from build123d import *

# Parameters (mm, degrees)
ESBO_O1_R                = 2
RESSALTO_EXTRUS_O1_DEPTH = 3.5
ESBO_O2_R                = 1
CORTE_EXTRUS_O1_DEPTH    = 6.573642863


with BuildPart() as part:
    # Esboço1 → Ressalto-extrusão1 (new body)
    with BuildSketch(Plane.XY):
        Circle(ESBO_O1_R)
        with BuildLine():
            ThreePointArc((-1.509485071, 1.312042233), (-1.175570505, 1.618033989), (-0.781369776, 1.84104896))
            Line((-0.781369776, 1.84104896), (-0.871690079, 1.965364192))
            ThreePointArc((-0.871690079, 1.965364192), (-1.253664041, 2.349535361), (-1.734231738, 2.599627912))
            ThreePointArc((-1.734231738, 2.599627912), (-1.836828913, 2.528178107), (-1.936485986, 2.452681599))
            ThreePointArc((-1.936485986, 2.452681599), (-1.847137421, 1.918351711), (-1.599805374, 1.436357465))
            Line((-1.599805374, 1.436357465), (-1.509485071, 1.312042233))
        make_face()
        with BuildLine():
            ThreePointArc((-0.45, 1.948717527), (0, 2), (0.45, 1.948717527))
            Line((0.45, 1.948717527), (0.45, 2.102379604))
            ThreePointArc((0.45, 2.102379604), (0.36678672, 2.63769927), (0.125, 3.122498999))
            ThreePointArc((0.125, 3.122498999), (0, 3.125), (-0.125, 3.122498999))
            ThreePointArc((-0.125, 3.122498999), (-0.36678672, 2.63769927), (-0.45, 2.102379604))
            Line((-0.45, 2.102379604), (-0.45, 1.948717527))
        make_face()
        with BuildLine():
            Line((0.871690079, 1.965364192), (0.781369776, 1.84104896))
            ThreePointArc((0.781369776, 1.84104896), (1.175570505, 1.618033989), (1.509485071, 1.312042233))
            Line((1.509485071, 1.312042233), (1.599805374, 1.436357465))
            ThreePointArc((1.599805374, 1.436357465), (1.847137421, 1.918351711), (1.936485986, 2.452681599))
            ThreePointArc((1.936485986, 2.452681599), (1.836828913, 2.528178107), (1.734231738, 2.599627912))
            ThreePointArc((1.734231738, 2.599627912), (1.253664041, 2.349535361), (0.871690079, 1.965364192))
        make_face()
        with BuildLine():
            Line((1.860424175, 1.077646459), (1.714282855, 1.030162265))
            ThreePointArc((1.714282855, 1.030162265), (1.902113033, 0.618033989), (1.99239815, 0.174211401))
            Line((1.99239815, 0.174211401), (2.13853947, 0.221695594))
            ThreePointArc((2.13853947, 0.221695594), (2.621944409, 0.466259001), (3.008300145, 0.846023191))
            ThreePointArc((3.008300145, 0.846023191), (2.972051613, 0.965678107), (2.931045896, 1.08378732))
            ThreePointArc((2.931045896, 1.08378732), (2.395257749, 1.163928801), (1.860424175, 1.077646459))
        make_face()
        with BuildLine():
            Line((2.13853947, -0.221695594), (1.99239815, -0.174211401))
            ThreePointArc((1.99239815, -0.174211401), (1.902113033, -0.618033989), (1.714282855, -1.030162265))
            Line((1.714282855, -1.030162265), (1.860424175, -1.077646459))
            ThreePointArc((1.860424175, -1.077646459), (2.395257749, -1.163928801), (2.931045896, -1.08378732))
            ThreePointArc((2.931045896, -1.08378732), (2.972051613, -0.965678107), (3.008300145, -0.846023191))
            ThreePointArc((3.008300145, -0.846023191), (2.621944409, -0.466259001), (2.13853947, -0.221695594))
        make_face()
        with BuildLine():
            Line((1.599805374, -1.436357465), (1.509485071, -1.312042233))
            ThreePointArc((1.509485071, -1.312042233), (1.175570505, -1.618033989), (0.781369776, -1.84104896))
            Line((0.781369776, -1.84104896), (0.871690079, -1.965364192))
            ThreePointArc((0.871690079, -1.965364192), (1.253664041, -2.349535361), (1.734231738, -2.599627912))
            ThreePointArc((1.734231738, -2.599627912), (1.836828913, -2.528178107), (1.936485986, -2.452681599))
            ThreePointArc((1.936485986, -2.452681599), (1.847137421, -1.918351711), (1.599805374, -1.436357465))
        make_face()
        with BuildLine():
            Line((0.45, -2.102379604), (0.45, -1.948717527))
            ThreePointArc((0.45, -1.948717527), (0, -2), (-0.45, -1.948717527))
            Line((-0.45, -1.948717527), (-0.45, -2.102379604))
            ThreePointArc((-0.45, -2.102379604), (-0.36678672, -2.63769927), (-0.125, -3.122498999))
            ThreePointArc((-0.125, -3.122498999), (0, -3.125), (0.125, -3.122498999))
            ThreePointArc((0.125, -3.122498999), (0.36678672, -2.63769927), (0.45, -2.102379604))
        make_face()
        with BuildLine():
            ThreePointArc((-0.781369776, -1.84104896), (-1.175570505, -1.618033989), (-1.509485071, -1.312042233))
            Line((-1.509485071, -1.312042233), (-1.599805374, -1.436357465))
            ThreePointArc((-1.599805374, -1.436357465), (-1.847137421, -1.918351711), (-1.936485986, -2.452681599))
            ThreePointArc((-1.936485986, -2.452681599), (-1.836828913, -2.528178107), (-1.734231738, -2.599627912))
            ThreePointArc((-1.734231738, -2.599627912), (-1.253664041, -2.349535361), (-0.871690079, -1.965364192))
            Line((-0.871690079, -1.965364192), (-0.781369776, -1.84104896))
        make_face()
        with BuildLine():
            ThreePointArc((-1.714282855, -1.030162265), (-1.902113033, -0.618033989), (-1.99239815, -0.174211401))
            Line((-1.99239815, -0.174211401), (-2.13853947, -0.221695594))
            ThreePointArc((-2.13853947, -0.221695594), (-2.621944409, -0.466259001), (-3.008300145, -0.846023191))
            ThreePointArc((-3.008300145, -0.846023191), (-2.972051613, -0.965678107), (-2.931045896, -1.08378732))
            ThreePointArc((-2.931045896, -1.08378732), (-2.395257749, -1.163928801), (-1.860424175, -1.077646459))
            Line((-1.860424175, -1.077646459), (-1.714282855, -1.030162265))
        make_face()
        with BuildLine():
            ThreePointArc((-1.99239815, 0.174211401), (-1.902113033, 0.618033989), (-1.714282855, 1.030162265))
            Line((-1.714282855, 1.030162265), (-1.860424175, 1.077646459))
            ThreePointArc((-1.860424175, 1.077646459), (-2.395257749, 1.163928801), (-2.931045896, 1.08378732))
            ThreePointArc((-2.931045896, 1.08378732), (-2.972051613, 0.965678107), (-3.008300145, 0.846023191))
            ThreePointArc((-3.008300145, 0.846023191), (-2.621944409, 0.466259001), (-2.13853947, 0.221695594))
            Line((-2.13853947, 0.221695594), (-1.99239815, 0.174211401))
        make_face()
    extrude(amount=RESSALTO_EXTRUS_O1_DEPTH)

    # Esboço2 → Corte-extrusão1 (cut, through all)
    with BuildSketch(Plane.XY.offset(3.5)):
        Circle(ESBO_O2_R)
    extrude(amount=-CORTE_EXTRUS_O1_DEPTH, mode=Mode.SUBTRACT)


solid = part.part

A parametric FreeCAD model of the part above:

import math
import FreeCAD as App
import Part
import Sketcher
Q = App.Units.Quantity

doc = App.newDocument("Part")
body = doc.addObject("PartDesign::Body", "Body")

# Sketch on XY plane
sketch1 = body.newObject("Sketcher::SketchObject", "Sketch")
sketch1.AttachmentSupport = (doc.getObject("XY_Plane"), [""])
sketch1.MapMode = "FlatFace"
sketch1.addGeometry(Part.LineSegment(App.Vector(-0.78, 1.84, 0), App.Vector(-0.87, 1.97, 0)), False)
sketch1.addGeometry(Part.ArcOfCircle(Part.Circle(App.Vector(-2.3, 0.93, 0), App.Vector(0, 0, 1), 1.76), math.radians(36), math.radians(71)), False)
sketch1.addGeometry(Part.ArcOfCircle(Part.Circle(App.Vector(0, 0, 0), App.Vector(0, 0, 1), 3.13), math.radians(123.71), math.radians(128.29)), False)
sketch1.addGeometry(Part.ArcOfCircle(Part.Circle(App.Vector(-0.17, 2.47, 0), App.Vector(0, 0, 1), 1.76), math.radians(-179), math.radians(-144)), False)
sketch1.addGeometry(Part.LineSegment(App.Vector(-1.6, 1.44, 0), App.Vector(-1.51, 1.31, 0)), False)
sketch1.addGeometry(Part.ArcOfCircle(Part.Circle(App.Vector(0, 0, 0), App.Vector(0, 0, 1), 2), math.radians(139), math.radians(149)), False)
sketch1.addGeometry(Part.LineSegment(App.Vector(-1.71, 1.03, 0), App.Vector(-1.86, 1.08, 0)), False)
sketch1.addGeometry(Part.ArcOfCircle(Part.Circle(App.Vector(-2.41, -0.6, 0), App.Vector(0, 0, 1), 1.76), math.radians(72), math.radians(107)), False)
sketch1.addGeometry(Part.ArcOfCircle(Part.Circle(App.Vector(0, 0, 0), App.Vector(0, 0, 1), 3.13), math.radians(159.71), math.radians(164.29)), False)
sketch1.addGeometry(Part.ArcOfCircle(Part.Circle(App.Vector(-1.59, 1.9, 0), App.Vector(0, 0, 1), 1.76), math.radians(-143), math.radians(-108)), False)
sketch1.addGeometry(Part.LineSegment(App.Vector(-2.14, 0.22, 0), App.Vector(-1.99, 0.17, 0)), False)
sketch1.addGeometry(Part.ArcOfCircle(Part.Circle(App.Vector(0, 0, 0), App.Vector(0, 0, 1), 2), math.radians(175), math.radians(185)), False)
sketch1.addGeometry(Part.LineSegment(App.Vector(-1.99, -0.17, 0), App.Vector(-2.14, -0.22, 0)), False)
sketch1.addGeometry(Part.ArcOfCircle(Part.Circle(App.Vector(-1.59, -1.9, 0), App.Vector(0, 0, 1), 1.76), math.radians(108), math.radians(143)), False)
sketch1.addGeometry(Part.ArcOfCircle(Part.Circle(App.Vector(0, 0, 0), App.Vector(0, 0, 1), 3.13), math.radians(-164.29), math.radians(-159.71)), False)
sketch1.addGeometry(Part.ArcOfCircle(Part.Circle(App.Vector(-2.41, 0.6, 0), App.Vector(0, 0, 1), 1.76), math.radians(-107), math.radians(-72)), False)
sketch1.addGeometry(Part.LineSegment(App.Vector(-1.86, -1.08, 0), App.Vector(-1.71, -1.03, 0)), False)
sketch1.addGeometry(Part.ArcOfCircle(Part.Circle(App.Vector(0, 0, 0), App.Vector(0, 0, 1), 2), math.radians(-149), math.radians(-139)), False)
sketch1.addGeometry(Part.LineSegment(App.Vector(-1.51, -1.31, 0), App.Vector(-1.6, -1.44, 0)), False)
sketch1.addGeometry(Part.ArcOfCircle(Part.Circle(App.Vector(-0.17, -2.47, 0), App.Vector(0, 0, 1), 1.76), math.radians(144), math.radians(179)), False)
sketch1.addGeometry(Part.ArcOfCircle(Part.Circle(App.Vector(0, 0, 0), App.Vector(0, 0, 1), 3.13), math.radians(-128.29), math.radians(-123.71)), False)
sketch1.addGeometry(Part.ArcOfCircle(Part.Circle(App.Vector(-2.3, -0.93, 0), App.Vector(0, 0, 1), 1.76), math.radians(-71), math.radians(-36)), False)
sketch1.addGeometry(Part.LineSegment(App.Vector(-0.87, -1.97, 0), App.Vector(-0.78, -1.84, 0)), False)
sketch1.addGeometry(Part.ArcOfCircle(Part.Circle(App.Vector(0, 0, 0), App.Vector(0, 0, 1), 2), math.radians(-113), math.radians(-103)), False)
sketch1.addGeometry(Part.LineSegment(App.Vector(-0.45, -1.95, 0), App.Vector(-0.45, -2.1, 0)), False)
sketch1.addGeometry(Part.ArcOfCircle(Part.Circle(App.Vector(1.31, -2.1, 0), App.Vector(0, 0, 1), 1.76), math.radians(180), math.radians(215)), False)
sketch1.addGeometry(Part.ArcOfCircle(Part.Circle(App.Vector(0, 0, 0), App.Vector(0, 0, 1), 3.12), math.radians(-92.29), math.radians(-87.71)), False)
sketch1.addGeometry(Part.ArcOfCircle(Part.Circle(App.Vector(-1.31, -2.1, 0), App.Vector(0, 0, 1), 1.76), math.radians(-35), math.radians(0)), False)
sketch1.addGeometry(Part.LineSegment(App.Vector(0.45, -2.1, 0), App.Vector(0.45, -1.95, 0)), False)
sketch1.addGeometry(Part.ArcOfCircle(Part.Circle(App.Vector(0, 0, 0), App.Vector(0, 0, 1), 2), math.radians(-77), math.radians(-67)), False)
sketch1.addGeometry(Part.LineSegment(App.Vector(0.78, -1.84, 0), App.Vector(0.87, -1.97, 0)), False)
sketch1.addGeometry(Part.ArcOfCircle(Part.Circle(App.Vector(2.3, -0.93, 0), App.Vector(0, 0, 1), 1.76), math.radians(-144), math.radians(-109)), False)
sketch1.addGeometry(Part.ArcOfCircle(Part.Circle(App.Vector(0, 0, 0), App.Vector(0, 0, 1), 3.13), math.radians(-56.29), math.radians(-51.71)), False)
sketch1.addGeometry(Part.ArcOfCircle(Part.Circle(App.Vector(0.17, -2.47, 0), App.Vector(0, 0, 1), 1.76), math.radians(1), math.radians(36)), False)
sketch1.addGeometry(Part.LineSegment(App.Vector(1.6, -1.44, 0), App.Vector(1.51, -1.31, 0)), False)
sketch1.addGeometry(Part.ArcOfCircle(Part.Circle(App.Vector(0, 0, 0), App.Vector(0, 0, 1), 2), math.radians(-41), math.radians(-31)), False)
sketch1.addGeometry(Part.LineSegment(App.Vector(1.71, -1.03, 0), App.Vector(1.86, -1.08, 0)), False)
sketch1.addGeometry(Part.ArcOfCircle(Part.Circle(App.Vector(2.41, 0.6, 0), App.Vector(0, 0, 1), 1.76), math.radians(-108), math.radians(-73)), False)
sketch1.addGeometry(Part.ArcOfCircle(Part.Circle(App.Vector(0, 0, 0), App.Vector(0, 0, 1), 3.13), math.radians(-20.29), math.radians(-15.71)), False)
sketch1.addGeometry(Part.ArcOfCircle(Part.Circle(App.Vector(1.59, -1.9, 0), App.Vector(0, 0, 1), 1.76), math.radians(37), math.radians(72)), False)
sketch1.addGeometry(Part.LineSegment(App.Vector(2.14, -0.22, 0), App.Vector(1.99, -0.17, 0)), False)
sketch1.addGeometry(Part.ArcOfCircle(Part.Circle(App.Vector(0, 0, 0), App.Vector(0, 0, 1), 2), math.radians(-5), math.radians(5)), False)
sketch1.addGeometry(Part.LineSegment(App.Vector(1.99, 0.17, 0), App.Vector(2.14, 0.22, 0)), False)
sketch1.addGeometry(Part.ArcOfCircle(Part.Circle(App.Vector(1.59, 1.9, 0), App.Vector(0, 0, 1), 1.76), math.radians(-72), math.radians(-37)), False)
sketch1.addGeometry(Part.ArcOfCircle(Part.Circle(App.Vector(0, 0, 0), App.Vector(0, 0, 1), 3.13), math.radians(15.71), math.radians(20.29)), False)
sketch1.addGeometry(Part.ArcOfCircle(Part.Circle(App.Vector(2.41, -0.6, 0), App.Vector(0, 0, 1), 1.76), math.radians(73), math.radians(108)), False)
sketch1.addGeometry(Part.LineSegment(App.Vector(1.86, 1.08, 0), App.Vector(1.71, 1.03, 0)), False)
sketch1.addGeometry(Part.ArcOfCircle(Part.Circle(App.Vector(0, 0, 0), App.Vector(0, 0, 1), 2), math.radians(31), math.radians(41)), False)
sketch1.addGeometry(Part.LineSegment(App.Vector(1.51, 1.31, 0), App.Vector(1.6, 1.44, 0)), False)
sketch1.addGeometry(Part.ArcOfCircle(Part.Circle(App.Vector(0.17, 2.47, 0), App.Vector(0, 0, 1), 1.76), math.radians(-36), math.radians(-1)), False)
sketch1.addGeometry(Part.ArcOfCircle(Part.Circle(App.Vector(0, 0, 0), App.Vector(0, 0, 1), 3.13), math.radians(51.71), math.radians(56.29)), False)
sketch1.addGeometry(Part.ArcOfCircle(Part.Circle(App.Vector(2.3, 0.93, 0), App.Vector(0, 0, 1), 1.76), math.radians(109), math.radians(144)), False)
sketch1.addGeometry(Part.LineSegment(App.Vector(0.87, 1.97, 0), App.Vector(0.78, 1.84, 0)), False)
sketch1.addGeometry(Part.ArcOfCircle(Part.Circle(App.Vector(0, 0, 0), App.Vector(0, 0, 1), 2), math.radians(67), math.radians(77)), False)
sketch1.addGeometry(Part.LineSegment(App.Vector(0.45, 1.95, 0), App.Vector(0.45, 2.1, 0)), False)
sketch1.addGeometry(Part.ArcOfCircle(Part.Circle(App.Vector(-1.31, 2.1, 0), App.Vector(0, 0, 1), 1.76), math.radians(0), math.radians(35)), False)
sketch1.addGeometry(Part.ArcOfCircle(Part.Circle(App.Vector(0, 0, 0), App.Vector(0, 0, 1), 3.12), math.radians(87.71), math.radians(92.29)), False)
sketch1.addGeometry(Part.ArcOfCircle(Part.Circle(App.Vector(1.31, 2.1, 0), App.Vector(0, 0, 1), 1.76), math.radians(145), math.radians(180)), False)
sketch1.addGeometry(Part.LineSegment(App.Vector(-0.45, 2.1, 0), App.Vector(-0.45, 1.95, 0)), False)
sketch1.addGeometry(Part.ArcOfCircle(Part.Circle(App.Vector(0, 0, 0), App.Vector(0, 0, 1), 2), math.radians(103), math.radians(113)), False)
sketch1.addConstraint(Sketcher.Constraint("Tangent", 0, 2, 1, 1))
sketch1.addConstraint(Sketcher.Constraint("Coincident", 1, 2, 2, 1))
sketch1.addConstraint(Sketcher.Constraint("Coincident", 2, 2, 3, 1))
sketch1.addConstraint(Sketcher.Constraint("Tangent", 3, 2, 4, 1))
sketch1.addConstraint(Sketcher.Constraint("Coincident", 4, 2, 5, 1))
sketch1.addConstraint(Sketcher.Constraint("Coincident", 5, 2, 6, 1))
sketch1.addConstraint(Sketcher.Constraint("Tangent", 6, 2, 7, 1))
sketch1.addConstraint(Sketcher.Constraint("Coincident", 7, 2, 8, 1))
sketch1.addConstraint(Sketcher.Constraint("Coincident", 8, 2, 9, 1))
sketch1.addConstraint(Sketcher.Constraint("Tangent", 9, 2, 10, 1))
sketch1.addConstraint(Sketcher.Constraint("Coincident", 10, 2, 11, 1))
sketch1.addConstraint(Sketcher.Constraint("Coincident", 11, 2, 12, 1))
sketch1.addConstraint(Sketcher.Constraint("Tangent", 12, 2, 13, 1))
sketch1.addConstraint(Sketcher.Constraint("Coincident", 13, 2, 14, 1))
sketch1.addConstraint(Sketcher.Constraint("Coincident", 14, 2, 15, 1))
sketch1.addConstraint(Sketcher.Constraint("Tangent", 15, 2, 16, 1))
sketch1.addConstraint(Sketcher.Constraint("Coincident", 16, 2, 17, 1))
sketch1.addConstraint(Sketcher.Constraint("Coincident", 17, 2, 18, 1))
sketch1.addConstraint(Sketcher.Constraint("Tangent", 18, 2, 19, 1))
sketch1.addConstraint(Sketcher.Constraint("Coincident", 19, 2, 20, 1))
sketch1.addConstraint(Sketcher.Constraint("Coincident", 20, 2, 21, 1))
sketch1.addConstraint(Sketcher.Constraint("Tangent", 21, 2, 22, 1))
sketch1.addConstraint(Sketcher.Constraint("Coincident", 22, 2, 23, 1))
sketch1.addConstraint(Sketcher.Constraint("Coincident", 23, 2, 24, 1))
sketch1.addConstraint(Sketcher.Constraint("Tangent", 24, 2, 25, 1))
sketch1.addConstraint(Sketcher.Constraint("Coincident", 25, 2, 26, 1))
sketch1.addConstraint(Sketcher.Constraint("Coincident", 26, 2, 27, 1))
sketch1.addConstraint(Sketcher.Constraint("Tangent", 27, 2, 28, 1))
sketch1.addConstraint(Sketcher.Constraint("Coincident", 28, 2, 29, 1))
sketch1.addConstraint(Sketcher.Constraint("Coincident", 29, 2, 30, 1))
sketch1.addConstraint(Sketcher.Constraint("Tangent", 30, 2, 31, 1))
sketch1.addConstraint(Sketcher.Constraint("Coincident", 31, 2, 32, 1))
sketch1.addConstraint(Sketcher.Constraint("Coincident", 32, 2, 33, 1))
sketch1.addConstraint(Sketcher.Constraint("Tangent", 33, 2, 34, 1))
sketch1.addConstraint(Sketcher.Constraint("Coincident", 34, 2, 35, 1))
sketch1.addConstraint(Sketcher.Constraint("Coincident", 35, 2, 36, 1))
sketch1.addConstraint(Sketcher.Constraint("Tangent", 36, 2, 37, 1))
sketch1.addConstraint(Sketcher.Constraint("Coincident", 37, 2, 38, 1))
sketch1.addConstraint(Sketcher.Constraint("Coincident", 38, 2, 39, 1))
sketch1.addConstraint(Sketcher.Constraint("Tangent", 39, 2, 40, 1))
sketch1.addConstraint(Sketcher.Constraint("Coincident", 40, 2, 41, 1))
sketch1.addConstraint(Sketcher.Constraint("Coincident", 41, 2, 42, 1))
sketch1.addConstraint(Sketcher.Constraint("Tangent", 42, 2, 43, 1))
sketch1.addConstraint(Sketcher.Constraint("Coincident", 43, 2, 44, 1))
sketch1.addConstraint(Sketcher.Constraint("Coincident", 44, 2, 45, 1))
sketch1.addConstraint(Sketcher.Constraint("Tangent", 45, 2, 46, 1))
sketch1.addConstraint(Sketcher.Constraint("Coincident", 46, 2, 47, 1))
sketch1.addConstraint(Sketcher.Constraint("Coincident", 47, 2, 48, 1))
sketch1.addConstraint(Sketcher.Constraint("Tangent", 48, 2, 49, 1))
sketch1.addConstraint(Sketcher.Constraint("Coincident", 49, 2, 50, 1))
sketch1.addConstraint(Sketcher.Constraint("Coincident", 50, 2, 51, 1))
sketch1.addConstraint(Sketcher.Constraint("Tangent", 51, 2, 52, 1))
sketch1.addConstraint(Sketcher.Constraint("Coincident", 52, 2, 53, 1))
sketch1.addConstraint(Sketcher.Constraint("Coincident", 53, 2, 54, 1))
sketch1.addConstraint(Sketcher.Constraint("Tangent", 54, 2, 55, 1))
sketch1.addConstraint(Sketcher.Constraint("Coincident", 55, 2, 56, 1))
sketch1.addConstraint(Sketcher.Constraint("Coincident", 56, 2, 57, 1))
sketch1.addConstraint(Sketcher.Constraint("Tangent", 57, 2, 58, 1))
sketch1.addConstraint(Sketcher.Constraint("Coincident", 58, 2, 59, 1))
sketch1.addConstraint(Sketcher.Constraint("Coincident", 59, 2, 0, 1))
sketch1.addConstraint(Sketcher.Constraint("Vertical", 24))
sketch1.addConstraint(Sketcher.Constraint("Vertical", 28))
sketch1.addConstraint(Sketcher.Constraint("Vertical", 54))
sketch1.addConstraint(Sketcher.Constraint("Vertical", 58))
sketch1.addConstraint(Sketcher.Constraint("Coincident", 2, 3, -1, 1))
sketch1.addConstraint(Sketcher.Constraint("Coincident", 5, 3, -1, 1))
sketch1.addConstraint(Sketcher.Constraint("Coincident", 8, 3, -1, 1))
sketch1.addConstraint(Sketcher.Constraint("Coincident", 11, 3, -1, 1))
sketch1.addConstraint(Sketcher.Constraint("Coincident", 14, 3, -1, 1))
sketch1.addConstraint(Sketcher.Constraint("Coincident", 17, 3, -1, 1))
sketch1.addConstraint(Sketcher.Constraint("Coincident", 20, 3, -1, 1))
sketch1.addConstraint(Sketcher.Constraint("Coincident", 23, 3, -1, 1))
sketch1.addConstraint(Sketcher.Constraint("Coincident", 26, 3, -1, 1))
sketch1.addConstraint(Sketcher.Constraint("Coincident", 29, 3, -1, 1))
sketch1.addConstraint(Sketcher.Constraint("Coincident", 32, 3, -1, 1))
sketch1.addConstraint(Sketcher.Constraint("Coincident", 35, 3, -1, 1))
sketch1.addConstraint(Sketcher.Constraint("Coincident", 38, 3, -1, 1))
sketch1.addConstraint(Sketcher.Constraint("Coincident", 41, 3, -1, 1))
sketch1.addConstraint(Sketcher.Constraint("Coincident", 44, 3, -1, 1))
sketch1.addConstraint(Sketcher.Constraint("Coincident", 47, 3, -1, 1))
sketch1.addConstraint(Sketcher.Constraint("Coincident", 50, 3, -1, 1))
sketch1.addConstraint(Sketcher.Constraint("Coincident", 53, 3, -1, 1))
sketch1.addConstraint(Sketcher.Constraint("Coincident", 56, 3, -1, 1))
sketch1.addConstraint(Sketcher.Constraint("Coincident", 59, 3, -1, 1))
sketch1.addConstraint(Sketcher.Constraint("Equal", 1, 3))
sketch1.addConstraint(Sketcher.Constraint("Equal", 3, 7))
sketch1.addConstraint(Sketcher.Constraint("Equal", 2, 8))
sketch1.addConstraint(Sketcher.Constraint("Equal", 7, 9))
sketch1.addConstraint(Sketcher.Constraint("Equal", 5, 11))
sketch1.addConstraint(Sketcher.Constraint("Equal", 9, 13))
sketch1.addConstraint(Sketcher.Constraint("Equal", 8, 14))
sketch1.addConstraint(Sketcher.Constraint("Equal", 13, 15))
sketch1.addConstraint(Sketcher.Constraint("Equal", 11, 17))
sketch1.addConstraint(Sketcher.Constraint("Equal", 15, 19))
sketch1.addConstraint(Sketcher.Constraint("Equal", 14, 20))
sketch1.addConstraint(Sketcher.Constraint("Equal", 19, 21))
sketch1.addConstraint(Sketcher.Constraint("Equal", 17, 23))
sketch1.addConstraint(Sketcher.Constraint("Equal", 21, 25))
sketch1.addConstraint(Sketcher.Constraint("Equal", 20, 26))
sketch1.addConstraint(Sketcher.Constraint("Equal", 25, 27))
sketch1.addConstraint(Sketcher.Constraint("Equal", 23, 29))
sketch1.addConstraint(Sketcher.Constraint("Equal", 27, 31))
sketch1.addConstraint(Sketcher.Constraint("Equal", 26, 32))
sketch1.addConstraint(Sketcher.Constraint("Equal", 31, 33))
sketch1.addConstraint(Sketcher.Constraint("Equal", 29, 35))
sketch1.addConstraint(Sketcher.Constraint("Equal", 33, 37))
sketch1.addConstraint(Sketcher.Constraint("Equal", 32, 38))
sketch1.addConstraint(Sketcher.Constraint("Equal", 37, 39))
sketch1.addConstraint(Sketcher.Constraint("Equal", 35, 41))
sketch1.addConstraint(Sketcher.Constraint("Equal", 39, 43))
sketch1.addConstraint(Sketcher.Constraint("Equal", 38, 44))
sketch1.addConstraint(Sketcher.Constraint("Equal", 43, 45))
sketch1.addConstraint(Sketcher.Constraint("Equal", 41, 47))
sketch1.addConstraint(Sketcher.Constraint("Equal", 45, 49))
sketch1.addConstraint(Sketcher.Constraint("Equal", 44, 50))
sketch1.addConstraint(Sketcher.Constraint("Equal", 49, 51))
sketch1.addConstraint(Sketcher.Constraint("Equal", 47, 53))
sketch1.addConstraint(Sketcher.Constraint("Equal", 51, 55))
sketch1.addConstraint(Sketcher.Constraint("Equal", 50, 56))
sketch1.addConstraint(Sketcher.Constraint("Equal", 55, 57))
sketch1.addConstraint(Sketcher.Constraint("Equal", 53, 59))
sketch1.addConstraint(Sketcher.Constraint("Symmetric", 1, 3, 31, 3, -1, 1))
sketch1.addConstraint(Sketcher.Constraint("Symmetric", 3, 3, 33, 3, -1, 1))
sketch1.addConstraint(Sketcher.Constraint("Symmetric", 7, 3, 37, 3, -1, 1))
sketch1.addConstraint(Sketcher.Constraint("Symmetric", 9, 3, 39, 3, -1, 1))
sketch1.addConstraint(Sketcher.Constraint("Symmetric", 13, 3, 43, 3, -1, 1))
sketch1.addConstraint(Sketcher.Constraint("Symmetric", 15, 3, 45, 3, -1, 1))
sketch1.addConstraint(Sketcher.Constraint("Symmetric", 19, 3, 49, 3, -1, 1))
sketch1.addConstraint(Sketcher.Constraint("Symmetric", 21, 3, 51, 3, -1, 1))
sketch1.addConstraint(Sketcher.Constraint("Symmetric", 25, 3, 55, 3, -1, 1))
sketch1.addConstraint(Sketcher.Constraint("Symmetric", 27, 3, 57, 3, -1, 1))
sketch1.addConstraint(Sketcher.Constraint("Symmetric", 25, 3, 27, 3, -2))
sketch1.addConstraint(Sketcher.Constraint("Symmetric", 21, 3, 31, 3, -2))
sketch1.addConstraint(Sketcher.Constraint("Symmetric", 19, 3, 33, 3, -2))
sketch1.addConstraint(Sketcher.Constraint("Symmetric", 15, 3, 37, 3, -2))
sketch1.addConstraint(Sketcher.Constraint("Symmetric", 13, 3, 39, 3, -2))
sketch1.addConstraint(Sketcher.Constraint("Parallel", 0, 4))
sketch1.addConstraint(Sketcher.Constraint("Parallel", 6, 10))
sketch1.addConstraint(Sketcher.Constraint("Parallel", 12, 16))
sketch1.addConstraint(Sketcher.Constraint("Parallel", 18, 22))
sketch1.addConstraint(Sketcher.Constraint("Parallel", 4, 30))
sketch1.addConstraint(Sketcher.Constraint("Parallel", 30, 34))
sketch1.addConstraint(Sketcher.Constraint("Parallel", 10, 36))
sketch1.addConstraint(Sketcher.Constraint("Parallel", 36, 40))
sketch1.addConstraint(Sketcher.Constraint("Parallel", 16, 42))
sketch1.addConstraint(Sketcher.Constraint("Parallel", 42, 46))
sketch1.addConstraint(Sketcher.Constraint("Parallel", 22, 48))
sketch1.addConstraint(Sketcher.Constraint("Parallel", 48, 52))
sketch1.addConstraint(Sketcher.Constraint("Horizontal", 22, 2, 29, 2))
sketch1.addConstraint(Sketcher.Constraint("Horizontal", 16, 2, 35, 2))
sketch1.addConstraint(Sketcher.Constraint("Equal", 0, 4))
sketch1.addConstraint(Sketcher.Constraint("Equal", 4, 6))
sketch1.addConstraint(Sketcher.Constraint("Equal", 6, 10))
sketch1.addConstraint(Sketcher.Constraint("Radius", 5, 2.0))
sketch1.addConstraint(Sketcher.Constraint("Angle", 0, Q("126 deg")))
sketch1.addConstraint(Sketcher.Constraint("Angle", 6, Q("162 deg")))
sketch1.addConstraint(Sketcher.Constraint("Radius", 2, 3.125001))
sketch1.addConstraint(Sketcher.Constraint("DistanceX", 23, 2, -1, 1, 0.45))
sketch1.addConstraint(Sketcher.Constraint("Radius", 1, 1.76349))
sketch1.addConstraint(Sketcher.Constraint("DistanceX", 25, 2, -1, 1, 0.125))
sketch1.addConstraint(Sketcher.Constraint("DistanceX", 8, 2, -1, 1, 3.0083))
sketch1.addConstraint(Sketcher.Constraint("DistanceX", 10, 2, -1, 1, 1.992398))
sketch1.addConstraint(Sketcher.Constraint("DistanceY", -1, 1, 1, 3, 0.928811))
sketch1.addConstraint(Sketcher.Constraint("DistanceX", 3, 3, -1, 1, 0.173112))
sketch1.addConstraint(Sketcher.Constraint("DistanceX", 7, 3, -1, 1, 2.405373))
pad1 = body.newObject("PartDesign::Pad", "Pad")
pad1.Profile = sketch1
pad1.Length = 3.5

# Sketch on XY plane
sketch2 = body.newObject("Sketcher::SketchObject", "Sketch001")
sketch2.AttachmentSupport = (doc.getObject("XY_Plane"), [""])
sketch2.MapMode = "FlatFace"
sketch2.AttachmentOffset = App.Placement(App.Vector(0, 0, 3.5), App.Rotation())
sketch2.addGeometry(Part.Circle(App.Vector(0, 0, 0), App.Vector(0, 0, 1), 1), False)
sketch2.addConstraint(Sketcher.Constraint("Coincident", 0, 3, -1, 1))
sketch2.addConstraint(Sketcher.Constraint("Diameter", 0, 2.0))
pocket1 = body.newObject("PartDesign::Pocket", "Pocket")
pocket1.Profile = sketch2
pocket1.Type = "ThroughAll"

doc.recompute()
